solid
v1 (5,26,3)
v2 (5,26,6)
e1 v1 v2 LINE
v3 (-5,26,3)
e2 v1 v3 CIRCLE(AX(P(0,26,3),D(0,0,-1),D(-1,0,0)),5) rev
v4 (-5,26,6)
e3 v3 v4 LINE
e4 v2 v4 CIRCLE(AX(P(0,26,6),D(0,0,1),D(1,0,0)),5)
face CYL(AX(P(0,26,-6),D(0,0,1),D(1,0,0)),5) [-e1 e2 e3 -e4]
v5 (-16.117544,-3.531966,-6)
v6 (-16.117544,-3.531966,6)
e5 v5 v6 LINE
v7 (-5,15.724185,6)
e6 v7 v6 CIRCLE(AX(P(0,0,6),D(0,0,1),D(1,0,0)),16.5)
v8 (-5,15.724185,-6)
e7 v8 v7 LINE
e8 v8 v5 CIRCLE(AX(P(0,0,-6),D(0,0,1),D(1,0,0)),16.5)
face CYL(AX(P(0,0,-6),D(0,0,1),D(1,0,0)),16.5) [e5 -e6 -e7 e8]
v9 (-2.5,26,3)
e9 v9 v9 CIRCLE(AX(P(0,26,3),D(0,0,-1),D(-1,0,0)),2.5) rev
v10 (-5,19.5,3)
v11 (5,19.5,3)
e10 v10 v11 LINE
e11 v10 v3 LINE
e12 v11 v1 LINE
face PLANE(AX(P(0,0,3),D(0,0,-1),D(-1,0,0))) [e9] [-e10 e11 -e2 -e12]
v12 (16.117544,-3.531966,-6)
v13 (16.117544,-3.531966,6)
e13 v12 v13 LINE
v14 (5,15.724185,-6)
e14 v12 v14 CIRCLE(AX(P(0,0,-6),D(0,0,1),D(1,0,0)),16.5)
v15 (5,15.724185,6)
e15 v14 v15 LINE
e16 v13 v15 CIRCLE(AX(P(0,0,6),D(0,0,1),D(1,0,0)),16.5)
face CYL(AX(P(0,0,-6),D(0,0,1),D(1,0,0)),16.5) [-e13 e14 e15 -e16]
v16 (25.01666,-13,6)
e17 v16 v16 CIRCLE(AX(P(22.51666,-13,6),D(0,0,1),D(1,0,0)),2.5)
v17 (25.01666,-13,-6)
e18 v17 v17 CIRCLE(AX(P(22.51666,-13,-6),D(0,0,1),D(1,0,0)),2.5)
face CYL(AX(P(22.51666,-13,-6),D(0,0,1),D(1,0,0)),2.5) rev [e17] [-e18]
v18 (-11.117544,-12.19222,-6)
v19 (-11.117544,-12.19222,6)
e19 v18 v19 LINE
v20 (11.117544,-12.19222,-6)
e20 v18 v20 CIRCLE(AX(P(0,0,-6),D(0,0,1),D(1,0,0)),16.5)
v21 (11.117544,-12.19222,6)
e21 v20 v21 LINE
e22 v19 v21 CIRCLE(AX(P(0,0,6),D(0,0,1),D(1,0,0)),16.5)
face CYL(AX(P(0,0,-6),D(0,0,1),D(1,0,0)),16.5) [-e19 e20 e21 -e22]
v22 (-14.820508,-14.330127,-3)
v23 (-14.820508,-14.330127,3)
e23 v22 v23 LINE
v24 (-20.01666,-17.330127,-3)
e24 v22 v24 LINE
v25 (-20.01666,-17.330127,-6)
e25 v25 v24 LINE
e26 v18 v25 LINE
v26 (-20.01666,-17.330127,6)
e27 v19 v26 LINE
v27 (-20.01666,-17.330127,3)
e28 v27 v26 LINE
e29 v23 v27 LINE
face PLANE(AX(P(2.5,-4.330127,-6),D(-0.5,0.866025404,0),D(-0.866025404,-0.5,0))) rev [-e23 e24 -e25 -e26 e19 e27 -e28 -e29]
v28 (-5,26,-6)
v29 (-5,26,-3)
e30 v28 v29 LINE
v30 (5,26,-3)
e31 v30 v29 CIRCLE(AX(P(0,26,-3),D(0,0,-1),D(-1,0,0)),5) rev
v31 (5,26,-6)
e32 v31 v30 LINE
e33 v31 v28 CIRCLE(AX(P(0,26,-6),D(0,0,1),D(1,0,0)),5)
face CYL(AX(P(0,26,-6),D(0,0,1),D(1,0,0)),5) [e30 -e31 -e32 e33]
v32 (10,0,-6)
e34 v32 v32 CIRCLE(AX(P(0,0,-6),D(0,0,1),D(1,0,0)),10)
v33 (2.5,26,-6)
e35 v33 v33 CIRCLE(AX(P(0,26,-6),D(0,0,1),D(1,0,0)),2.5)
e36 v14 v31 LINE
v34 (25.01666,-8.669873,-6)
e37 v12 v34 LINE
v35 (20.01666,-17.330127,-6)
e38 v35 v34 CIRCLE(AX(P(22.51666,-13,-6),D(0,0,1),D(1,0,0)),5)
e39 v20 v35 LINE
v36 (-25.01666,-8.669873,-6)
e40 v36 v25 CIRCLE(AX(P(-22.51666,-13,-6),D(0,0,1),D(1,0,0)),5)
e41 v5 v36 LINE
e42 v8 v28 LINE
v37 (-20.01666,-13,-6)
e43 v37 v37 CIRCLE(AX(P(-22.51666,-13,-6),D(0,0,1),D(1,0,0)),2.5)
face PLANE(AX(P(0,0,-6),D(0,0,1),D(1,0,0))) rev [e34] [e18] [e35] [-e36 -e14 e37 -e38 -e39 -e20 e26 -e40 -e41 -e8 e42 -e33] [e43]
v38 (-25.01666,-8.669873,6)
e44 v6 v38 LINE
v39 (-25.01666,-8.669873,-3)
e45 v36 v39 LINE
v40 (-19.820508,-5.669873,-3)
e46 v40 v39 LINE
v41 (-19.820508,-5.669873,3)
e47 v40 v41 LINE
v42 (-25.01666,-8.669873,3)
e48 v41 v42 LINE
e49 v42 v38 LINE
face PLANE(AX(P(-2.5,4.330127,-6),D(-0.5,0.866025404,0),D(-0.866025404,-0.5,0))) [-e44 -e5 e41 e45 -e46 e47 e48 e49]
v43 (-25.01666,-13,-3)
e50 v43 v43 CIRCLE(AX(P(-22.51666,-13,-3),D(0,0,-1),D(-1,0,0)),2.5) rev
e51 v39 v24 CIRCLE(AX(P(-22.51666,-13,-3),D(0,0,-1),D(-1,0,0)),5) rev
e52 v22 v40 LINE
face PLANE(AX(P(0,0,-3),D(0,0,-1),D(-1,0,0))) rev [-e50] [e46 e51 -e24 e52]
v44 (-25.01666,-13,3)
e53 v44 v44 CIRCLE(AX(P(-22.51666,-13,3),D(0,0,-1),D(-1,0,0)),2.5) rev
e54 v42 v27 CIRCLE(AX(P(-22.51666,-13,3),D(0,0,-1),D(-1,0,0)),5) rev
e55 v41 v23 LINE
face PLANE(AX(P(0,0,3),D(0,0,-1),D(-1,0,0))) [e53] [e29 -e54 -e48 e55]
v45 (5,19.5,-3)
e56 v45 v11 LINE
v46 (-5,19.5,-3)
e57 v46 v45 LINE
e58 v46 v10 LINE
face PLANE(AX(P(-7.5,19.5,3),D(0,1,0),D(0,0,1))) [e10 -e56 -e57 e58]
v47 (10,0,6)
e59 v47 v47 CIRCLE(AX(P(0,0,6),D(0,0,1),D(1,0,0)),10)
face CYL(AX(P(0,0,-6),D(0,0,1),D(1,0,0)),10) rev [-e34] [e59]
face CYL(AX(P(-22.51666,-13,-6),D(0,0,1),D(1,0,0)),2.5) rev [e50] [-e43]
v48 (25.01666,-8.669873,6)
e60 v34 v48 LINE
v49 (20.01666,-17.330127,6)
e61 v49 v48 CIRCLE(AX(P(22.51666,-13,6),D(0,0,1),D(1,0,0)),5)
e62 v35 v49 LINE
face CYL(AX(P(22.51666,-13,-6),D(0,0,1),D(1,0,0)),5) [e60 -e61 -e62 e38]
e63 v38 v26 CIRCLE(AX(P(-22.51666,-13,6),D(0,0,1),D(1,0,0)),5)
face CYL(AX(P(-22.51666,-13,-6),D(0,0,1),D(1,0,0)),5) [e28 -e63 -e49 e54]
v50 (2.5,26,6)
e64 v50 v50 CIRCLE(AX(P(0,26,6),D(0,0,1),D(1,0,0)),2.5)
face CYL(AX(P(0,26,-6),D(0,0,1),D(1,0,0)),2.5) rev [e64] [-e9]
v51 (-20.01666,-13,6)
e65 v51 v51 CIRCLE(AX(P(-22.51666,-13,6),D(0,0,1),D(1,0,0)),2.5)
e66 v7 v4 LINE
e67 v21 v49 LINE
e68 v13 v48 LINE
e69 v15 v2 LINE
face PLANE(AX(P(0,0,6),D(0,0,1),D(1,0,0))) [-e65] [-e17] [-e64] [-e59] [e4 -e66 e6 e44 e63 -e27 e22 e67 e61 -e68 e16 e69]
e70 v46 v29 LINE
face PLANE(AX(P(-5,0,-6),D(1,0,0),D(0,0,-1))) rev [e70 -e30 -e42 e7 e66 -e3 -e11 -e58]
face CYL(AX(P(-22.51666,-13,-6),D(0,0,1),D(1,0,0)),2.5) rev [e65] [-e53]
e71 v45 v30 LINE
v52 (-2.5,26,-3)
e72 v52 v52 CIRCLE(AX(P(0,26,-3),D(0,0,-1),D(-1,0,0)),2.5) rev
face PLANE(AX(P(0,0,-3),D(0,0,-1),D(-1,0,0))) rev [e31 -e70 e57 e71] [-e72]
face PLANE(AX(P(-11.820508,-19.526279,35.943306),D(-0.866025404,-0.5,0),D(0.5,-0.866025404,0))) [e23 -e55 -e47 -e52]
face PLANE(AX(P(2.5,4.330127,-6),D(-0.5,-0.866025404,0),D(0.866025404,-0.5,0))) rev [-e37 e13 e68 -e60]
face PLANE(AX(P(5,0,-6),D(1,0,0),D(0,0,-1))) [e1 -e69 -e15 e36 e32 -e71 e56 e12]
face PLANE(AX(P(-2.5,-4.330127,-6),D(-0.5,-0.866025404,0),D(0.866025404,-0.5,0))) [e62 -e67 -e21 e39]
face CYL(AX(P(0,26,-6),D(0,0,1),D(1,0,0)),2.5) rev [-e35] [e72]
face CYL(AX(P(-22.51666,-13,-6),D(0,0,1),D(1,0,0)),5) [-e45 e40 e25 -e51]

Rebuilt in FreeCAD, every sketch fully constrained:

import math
import FreeCAD as App
import Part
import Sketcher
from FreeCAD import Vector
Q = App.Units.Quantity

doc = App.newDocument("Part")
body = doc.addObject("PartDesign::Body", "Body")

# Sketch on XY plane
sketch1 = doc.addObject("Sketcher::SketchObject", "Sketch")
body.addObject(sketch1)
sketch1.AttachmentSupport = (doc.XY_Plane, [""])
sketch1.MapMode = "FlatFace"
sketch1.addGeometry([
    Part.ArcOfCircle(Part.Circle(Vector(0, 0, 0), Vector(0, 0, 1), 16.5), math.radians(-12.36), math.radians(0)),  # 0
    Part.ArcOfCircle(Part.Circle(Vector(0, 0, 0), Vector(0, 0, 1), 16.5), math.radians(0), math.radians(72)),  # 1
    Part.LineSegment(Vector(5, 15.7, 0), Vector(5, 26, 0)),  # 2
    Part.ArcOfCircle(Part.Circle(Vector(0, 26, 0), Vector(0, 0, 1), 5), math.radians(0), math.radians(180)),  # 3
    Part.LineSegment(Vector(-5, 26, 0), Vector(-5, 15.7, 0)),  # 4
    Part.ArcOfCircle(Part.Circle(Vector(0, 0, 0), Vector(0, 0, 1), 16.5), math.radians(108), math.radians(192)),  # 5
    Part.LineSegment(Vector(-16.1, -3.5, 0), Vector(-25, -8.7, 0)),  # 6
    Part.ArcOfCircle(Part.Circle(Vector(-22.5, -13, 0), Vector(0, 0, 1), 5), math.radians(120), math.radians(300)),  # 7
    Part.LineSegment(Vector(-20, -17.3, 0), Vector(-11.1, -12.2, 0)),  # 8
    Part.ArcOfCircle(Part.Circle(Vector(0, 0, 0), Vector(0, 0, 1), 16.5), math.radians(-132), math.radians(-48)),  # 9
    Part.LineSegment(Vector(11.1, -12.2, 0), Vector(20, -17.3, 0)),  # 10
    Part.ArcOfCircle(Part.Circle(Vector(22.5, -13, 0), Vector(0, 0, 1), 5), math.radians(-120), math.radians(60)),  # 11
    Part.LineSegment(Vector(25, -8.7, 0), Vector(16.1, -3.5, 0)),  # 12
    Part.ArcOfCircle(Part.Circle(Vector(0, 0, 0), Vector(0, 0, 1), 10), math.radians(0), math.radians(60)),  # 13
    Part.ArcOfCircle(Part.Circle(Vector(0, 0, 0), Vector(0, 0, 1), 10), math.radians(-60), math.radians(0)),  # 14
    Part.ArcOfCircle(Part.Circle(Vector(0, 0, 0), Vector(0, 0, 1), 10), math.radians(-120), math.radians(-60)),  # 15
    Part.ArcOfCircle(Part.Circle(Vector(0, 0, 0), Vector(0, 0, 1), 10), math.radians(180), math.radians(240)),  # 16
    Part.ArcOfCircle(Part.Circle(Vector(0, 0, 0), Vector(0, 0, 1), 10), math.radians(120), math.radians(180)),  # 17
    Part.ArcOfCircle(Part.Circle(Vector(0, 0, 0), Vector(0, 0, 1), 10), math.radians(60), math.radians(120)),  # 18
    Part.Circle(Vector(0, 26, 0), Vector(0, 0, 1), 2.5),  # 19
    Part.Circle(Vector(22.5, -13, 0), Vector(0, 0, 1), 2.5),  # 20
    Part.Circle(Vector(-22.5, -13, 0), Vector(0, 0, 1), 2.5),  # 21
], False)
sketch1.addConstraint([
    Sketcher.Constraint("Tangent", 0, 2, 1, 1),
    Sketcher.Constraint("Coincident", 1, 2, 2, 1),
    Sketcher.Constraint("Tangent", 2, 2, 3, 1),
    Sketcher.Constraint("Tangent", 3, 2, 4, 1),
    Sketcher.Constraint("Coincident", 4, 2, 5, 1),
    Sketcher.Constraint("Coincident", 5, 2, 6, 1),
    Sketcher.Constraint("Tangent", 6, 2, 7, 1),
    Sketcher.Constraint("Tangent", 7, 2, 8, 1),
    Sketcher.Constraint("Coincident", 8, 2, 9, 1),
    Sketcher.Constraint("Coincident", 9, 2, 10, 1),
    Sketcher.Constraint("Tangent", 10, 2, 11, 1),
    Sketcher.Constraint("Tangent", 11, 2, 12, 1),
    Sketcher.Constraint("Coincident", 12, 2, 0, 1),
    Sketcher.Constraint("Tangent", 13, 1, 14, 2),
    Sketcher.Constraint("Tangent", 14, 1, 15, 2),
    Sketcher.Constraint("Tangent", 15, 1, 16, 2),
    Sketcher.Constraint("Tangent", 16, 1, 17, 2),
    Sketcher.Constraint("Tangent", 17, 1, 18, 2),
    Sketcher.Constraint("Tangent", 18, 1, 13, 2),
    Sketcher.Constraint("Vertical", 2),
    Sketcher.Constraint("Vertical", 4),
    Sketcher.Constraint("Coincident", 0, 3, -1, 1),
    Sketcher.Constraint("Coincident", 5, 3, -1, 1),
    Sketcher.Constraint("Coincident", 9, 3, -1, 1),
    Sketcher.Constraint("Coincident", 13, 3, -1, 1),
    Sketcher.Constraint("Coincident", 15, 3, -1, 1),
    Sketcher.Constraint("Coincident", 19, 3, 3, 3),
    Sketcher.Constraint("Coincident", 20, 3, 11, 3),
    Sketcher.Constraint("Coincident", 21, 3, 7, 3),
    Sketcher.Constraint("Equal", 0, 1),
    Sketcher.Constraint("Equal", 1, 5),
    Sketcher.Constraint("Equal", 3, 7),
    Sketcher.Constraint("Equal", 5, 9),
    Sketcher.Constraint("Equal", 7, 11),
    Sketcher.Constraint("Equal", 15, 16),
    Sketcher.Constraint("Equal", 19, 20),
    Sketcher.Constraint("Equal", 20, 21),
    Sketcher.Constraint("Symmetric", 7, 3, 11, 3, -2),
    Sketcher.Constraint("PointOnObject", 3, 3, -2),
    Sketcher.Constraint("PointOnObject", 0, 2, -1),
    Sketcher.Constraint("PointOnObject", 13, 1, -1),
    Sketcher.Constraint("PointOnObject", 16, 1, -1),
    Sketcher.Constraint("Parallel", 6, 8),
    Sketcher.Constraint("Parallel", 10, 12),
    Sketcher.Constraint("Horizontal", 8, 2, 9, 2),
    Sketcher.Constraint("Horizontal", 14, 1, 15, 1),
    Sketcher.Constraint("Horizontal", 17, 1, 18, 1),
    Sketcher.Constraint("Vertical", 2, 2, 14, 1),
    Sketcher.Constraint("Vertical", 15, 1, 17, 1),
    Sketcher.Constraint("Equal", 6, 8),
    Sketcher.Constraint("Diameter", 19, 5.0),
    Sketcher.Constraint("Radius", 3, 5.0),
    Sketcher.Constraint("Radius", 13, 10.0),
    Sketcher.Constraint("Radius", 0, 16.5),
    Sketcher.Constraint("Angle", 6, Q("-150 deg")),
    Sketcher.Constraint("DistanceY", -1, 1, 3, 3, 26.0),
    Sketcher.Constraint("DistanceY", 7, 3, -1, 1, 13.0),
])
pad1 = doc.addObject("PartDesign::Pad", "Pad")
body.addObject(pad1)
pad1.Profile = sketch1
pad1.Type = "TwoLengths"
pad1.Length = 6
pad1.Length2 = 6

# Sketch on XY plane
sketch2 = doc.addObject("Sketcher::SketchObject", "Sketch001")
body.addObject(sketch2)
sketch2.AttachmentSupport = (doc.XY_Plane, [""])
sketch2.MapMode = "FlatFace"
sketch2.addGeometry([
    Part.LineSegment(Vector(-8, 32, 0), Vector(-8, 20, 0)),
    Part.LineSegment(Vector(-8, 20, 0), Vector(8, 20, 0)),
    Part.LineSegment(Vector(8, 20, 0), Vector(8, 32, 0)),
    Part.LineSegment(Vector(8, 32, 0), Vector(-8, 32, 0)),
], False)
sketch2.addConstraint([
    Sketcher.Constraint("Coincident", 0, 2, 1, 1),
    Sketcher.Constraint("Coincident", 1, 2, 2, 1),
    Sketcher.Constraint("Coincident", 2, 2, 3, 1),
    Sketcher.Constraint("Coincident", 3, 2, 0, 1),
    Sketcher.Constraint("Vertical", 0),
    Sketcher.Constraint("Horizontal", 1),
    Sketcher.Constraint("Vertical", 2),
    Sketcher.Constraint("Horizontal", 3),
    Sketcher.Constraint("DistanceX", 1, 1, 1, 2, 15.0),
    Sketcher.Constraint("DistanceY", 0, 2, 0, 1, 13.0),
    Sketcher.Constraint("DistanceX", 0, 2, -1, 1, 7.5),
    Sketcher.Constraint("DistanceY", -1, 1, 0, 2, 19.5),
])
pocket1 = doc.addObject("PartDesign::Pocket", "Pocket")
body.addObject(pocket1)
pocket1.Profile = sketch2
pocket1.Type = "TwoLengths"
pocket1.Length = 3
pocket1.Length2 = 3
pocket1.Reversed = True

# Sketch on XY plane
sketch3 = doc.addObject("Sketcher::SketchObject", "Sketch002")
body.addObject(sketch3)
sketch3.AttachmentSupport = (doc.XY_Plane, [""])
sketch3.MapMode = "FlatFace"
sketch3.AttachmentOffset = App.Placement(Vector(0, 0, -3), App.Rotation())
sketch3.addGeometry([
    Part.LineSegment(Vector(-22, -26, 0), Vector(-12, -20, 0)),
    Part.LineSegment(Vector(-12, -20, 0), Vector(-23, 0, 0)),
    Part.LineSegment(Vector(-23, 0, 0), Vector(-33, -6, 0)),
    Part.LineSegment(Vector(-33, -6, 0), Vector(-22, -26, 0)),
], False)
sketch3.addConstraint([
    Sketcher.Constraint("Coincident", 0, 2, 1, 1),
    Sketcher.Constraint("Coincident", 1, 2, 2, 1),
    Sketcher.Constraint("Coincident", 2, 2, 3, 1),
    Sketcher.Constraint("Coincident", 3, 2, 0, 1),
    Sketcher.Constraint("Perpendicular", 0, 1),
    Sketcher.Constraint("Perpendicular", 1, 2),
    Sketcher.Constraint("Perpendicular", 2, 3),
    Sketcher.Constraint("Angle", 0, Q("30 deg")),
    Sketcher.Constraint("Distance", 0, 12.0),
    Sketcher.Constraint("Distance", 1, 22.0),
    Sketcher.Constraint("DistanceX", 0, 2, -1, 1, 11.820508),
    Sketcher.Constraint("DistanceY", 0, 2, -1, 1, 19.526279),
])
pocket2 = doc.addObject("PartDesign::Pocket", "Pocket001")
body.addObject(pocket2)
pocket2.Profile = sketch3
pocket2.Length = 6
pocket2.Reversed = True

doc.recompute()
